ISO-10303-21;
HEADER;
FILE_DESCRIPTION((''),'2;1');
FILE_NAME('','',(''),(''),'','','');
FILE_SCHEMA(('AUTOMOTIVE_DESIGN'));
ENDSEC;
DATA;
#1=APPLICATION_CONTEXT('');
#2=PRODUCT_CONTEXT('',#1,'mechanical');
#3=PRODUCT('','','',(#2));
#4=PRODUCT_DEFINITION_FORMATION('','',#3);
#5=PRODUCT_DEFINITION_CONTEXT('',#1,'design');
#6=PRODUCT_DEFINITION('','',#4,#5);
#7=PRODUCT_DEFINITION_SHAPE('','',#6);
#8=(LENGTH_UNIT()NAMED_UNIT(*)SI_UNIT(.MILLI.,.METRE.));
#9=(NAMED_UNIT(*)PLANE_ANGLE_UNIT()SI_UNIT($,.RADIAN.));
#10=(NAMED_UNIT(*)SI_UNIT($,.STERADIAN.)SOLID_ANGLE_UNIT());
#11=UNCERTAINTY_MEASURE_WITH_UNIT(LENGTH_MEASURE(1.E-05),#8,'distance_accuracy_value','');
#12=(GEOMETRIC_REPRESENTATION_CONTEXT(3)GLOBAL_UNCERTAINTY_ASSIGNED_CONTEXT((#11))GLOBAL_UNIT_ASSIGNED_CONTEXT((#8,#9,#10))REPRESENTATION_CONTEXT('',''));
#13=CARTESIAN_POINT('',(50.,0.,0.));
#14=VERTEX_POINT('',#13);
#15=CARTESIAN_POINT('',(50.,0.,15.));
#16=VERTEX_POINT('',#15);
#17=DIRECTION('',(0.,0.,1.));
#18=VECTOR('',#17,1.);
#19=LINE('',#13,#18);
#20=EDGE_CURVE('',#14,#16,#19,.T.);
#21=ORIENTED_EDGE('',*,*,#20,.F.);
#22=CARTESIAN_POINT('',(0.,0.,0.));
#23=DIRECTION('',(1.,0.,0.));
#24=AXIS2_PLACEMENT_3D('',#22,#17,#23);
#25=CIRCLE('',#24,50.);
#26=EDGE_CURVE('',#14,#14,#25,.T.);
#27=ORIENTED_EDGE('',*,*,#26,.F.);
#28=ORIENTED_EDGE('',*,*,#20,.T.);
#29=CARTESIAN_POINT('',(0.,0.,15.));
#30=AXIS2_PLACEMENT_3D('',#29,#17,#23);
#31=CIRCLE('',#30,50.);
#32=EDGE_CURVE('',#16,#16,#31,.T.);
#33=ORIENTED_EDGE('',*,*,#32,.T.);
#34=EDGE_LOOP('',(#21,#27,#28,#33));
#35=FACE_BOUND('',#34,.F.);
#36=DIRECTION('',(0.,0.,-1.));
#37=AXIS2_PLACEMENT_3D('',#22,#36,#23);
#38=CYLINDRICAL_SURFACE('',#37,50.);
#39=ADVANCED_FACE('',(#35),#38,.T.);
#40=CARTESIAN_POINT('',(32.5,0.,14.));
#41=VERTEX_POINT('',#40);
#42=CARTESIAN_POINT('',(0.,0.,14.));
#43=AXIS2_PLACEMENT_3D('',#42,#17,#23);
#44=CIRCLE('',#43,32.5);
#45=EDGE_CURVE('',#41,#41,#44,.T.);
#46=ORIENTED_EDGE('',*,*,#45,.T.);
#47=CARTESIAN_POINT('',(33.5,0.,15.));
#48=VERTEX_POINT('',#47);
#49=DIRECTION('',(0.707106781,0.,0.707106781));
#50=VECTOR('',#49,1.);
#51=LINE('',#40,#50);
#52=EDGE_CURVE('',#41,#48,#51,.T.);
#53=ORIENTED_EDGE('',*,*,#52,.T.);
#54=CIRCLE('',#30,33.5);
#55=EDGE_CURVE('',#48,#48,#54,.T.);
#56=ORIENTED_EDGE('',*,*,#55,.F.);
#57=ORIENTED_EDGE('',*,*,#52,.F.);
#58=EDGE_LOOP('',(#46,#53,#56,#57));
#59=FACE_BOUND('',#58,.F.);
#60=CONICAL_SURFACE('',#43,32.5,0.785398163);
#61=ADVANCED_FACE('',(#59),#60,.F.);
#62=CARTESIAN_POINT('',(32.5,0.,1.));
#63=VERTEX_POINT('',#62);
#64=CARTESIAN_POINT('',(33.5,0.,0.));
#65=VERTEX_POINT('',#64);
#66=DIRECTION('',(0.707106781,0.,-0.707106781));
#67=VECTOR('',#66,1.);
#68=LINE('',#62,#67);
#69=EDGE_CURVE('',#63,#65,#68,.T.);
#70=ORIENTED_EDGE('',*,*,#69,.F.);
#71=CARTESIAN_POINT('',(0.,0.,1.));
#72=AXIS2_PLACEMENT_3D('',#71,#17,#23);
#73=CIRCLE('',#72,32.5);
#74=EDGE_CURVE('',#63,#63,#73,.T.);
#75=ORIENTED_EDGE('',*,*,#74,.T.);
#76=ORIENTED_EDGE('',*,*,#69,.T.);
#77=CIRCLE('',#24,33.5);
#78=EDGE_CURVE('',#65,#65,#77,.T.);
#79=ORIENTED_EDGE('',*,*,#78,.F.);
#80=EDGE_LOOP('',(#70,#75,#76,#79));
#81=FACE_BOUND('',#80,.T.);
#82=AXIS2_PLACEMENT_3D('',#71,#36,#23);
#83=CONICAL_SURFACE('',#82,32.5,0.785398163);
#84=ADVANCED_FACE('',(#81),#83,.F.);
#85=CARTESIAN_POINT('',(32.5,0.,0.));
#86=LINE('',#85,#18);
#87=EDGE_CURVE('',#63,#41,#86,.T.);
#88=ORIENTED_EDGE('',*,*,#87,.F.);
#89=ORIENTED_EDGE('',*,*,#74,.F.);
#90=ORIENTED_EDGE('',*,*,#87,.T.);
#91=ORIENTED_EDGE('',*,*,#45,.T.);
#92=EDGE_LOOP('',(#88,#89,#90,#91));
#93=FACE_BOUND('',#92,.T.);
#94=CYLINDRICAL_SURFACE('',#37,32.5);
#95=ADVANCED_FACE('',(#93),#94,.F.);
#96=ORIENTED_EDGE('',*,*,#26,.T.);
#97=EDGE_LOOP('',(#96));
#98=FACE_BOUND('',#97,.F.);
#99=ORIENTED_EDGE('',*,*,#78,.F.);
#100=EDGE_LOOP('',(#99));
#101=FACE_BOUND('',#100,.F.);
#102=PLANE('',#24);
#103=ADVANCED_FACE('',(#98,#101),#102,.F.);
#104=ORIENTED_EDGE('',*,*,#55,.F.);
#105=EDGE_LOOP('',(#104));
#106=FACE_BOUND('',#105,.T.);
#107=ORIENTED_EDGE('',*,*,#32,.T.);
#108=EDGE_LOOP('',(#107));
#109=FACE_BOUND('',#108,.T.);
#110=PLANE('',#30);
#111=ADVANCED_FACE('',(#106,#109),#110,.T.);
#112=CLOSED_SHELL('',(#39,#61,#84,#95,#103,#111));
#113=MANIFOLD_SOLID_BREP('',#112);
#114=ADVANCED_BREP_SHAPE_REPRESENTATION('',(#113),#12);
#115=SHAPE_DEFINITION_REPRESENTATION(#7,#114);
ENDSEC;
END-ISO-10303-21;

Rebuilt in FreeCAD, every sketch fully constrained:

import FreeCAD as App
import Part
import Sketcher

V = App.Vector
Q = App.Units.Quantity


def edges_at(feature, points):
    """Names of the edges that pass closest to the given points."""
    edges = feature.Shape.Edges
    near = lambda p: min(range(len(edges)), key=lambda i: edges[i].distToShape(Part.Vertex(*p))[0])
    return sorted({f"Edge{near(p) + 1}" for p in points})

doc = App.newDocument("Part")
params = doc.addObject("Spreadsheet::Sheet", "Params")
for row, (alias, value) in enumerate([
    ("sketch1_diameter", "100 mm"),
    ("sketch1_diameter2", "65 mm"),
    ("pad1_length", "15 mm"),
    ("chamfer_size", "1 mm"),
], start=1):
    params.set(f"A{row}", alias)
    params.set(f"B{row}", "=" + value)
    params.setAlias(f"B{row}", alias)

body = doc.addObject("PartDesign::Body", "Body")

# Sketch on XY plane
sketch1 = body.newObject("Sketcher::SketchObject", "Sketch")
sketch1.AttachmentSupport = (doc.getObject("XY_Plane"), [""])
sketch1.MapMode = "FlatFace"
sketch1.addGeometry([
    Part.Circle(V(0, 0, 0), V(0, 0, 1), 50),
    Part.Circle(V(0, 0, 0), V(0, 0, 1), 32),
], False)
sketch1.addConstraint([
    Sketcher.Constraint("Coincident", 0, 3, -1, 1),
    Sketcher.Constraint("Coincident", 1, 3, -1, 1),
    Sketcher.Constraint("Diameter", 0, Q("100 mm")),
    Sketcher.Constraint("Diameter", 1, Q("65 mm")),
])
sketch1.setExpression("Constraints[2]", "Params.sketch1_diameter")
sketch1.setExpression("Constraints[3]", "Params.sketch1_diameter2")
pad1 = body.newObject("PartDesign::Pad", "Pad")
pad1.Profile = sketch1
pad1.setExpression("Length", "Params.pad1_length")
doc.recompute()

chamfer = body.newObject("PartDesign::Chamfer", "Chamfer")
chamfer.Base = (pad1, edges_at(pad1, [(-32.5, 0, 15), (-32.5, 0, 0)]))
chamfer.setExpression("Size", "Params.chamfer_size")

doc.recompute()
